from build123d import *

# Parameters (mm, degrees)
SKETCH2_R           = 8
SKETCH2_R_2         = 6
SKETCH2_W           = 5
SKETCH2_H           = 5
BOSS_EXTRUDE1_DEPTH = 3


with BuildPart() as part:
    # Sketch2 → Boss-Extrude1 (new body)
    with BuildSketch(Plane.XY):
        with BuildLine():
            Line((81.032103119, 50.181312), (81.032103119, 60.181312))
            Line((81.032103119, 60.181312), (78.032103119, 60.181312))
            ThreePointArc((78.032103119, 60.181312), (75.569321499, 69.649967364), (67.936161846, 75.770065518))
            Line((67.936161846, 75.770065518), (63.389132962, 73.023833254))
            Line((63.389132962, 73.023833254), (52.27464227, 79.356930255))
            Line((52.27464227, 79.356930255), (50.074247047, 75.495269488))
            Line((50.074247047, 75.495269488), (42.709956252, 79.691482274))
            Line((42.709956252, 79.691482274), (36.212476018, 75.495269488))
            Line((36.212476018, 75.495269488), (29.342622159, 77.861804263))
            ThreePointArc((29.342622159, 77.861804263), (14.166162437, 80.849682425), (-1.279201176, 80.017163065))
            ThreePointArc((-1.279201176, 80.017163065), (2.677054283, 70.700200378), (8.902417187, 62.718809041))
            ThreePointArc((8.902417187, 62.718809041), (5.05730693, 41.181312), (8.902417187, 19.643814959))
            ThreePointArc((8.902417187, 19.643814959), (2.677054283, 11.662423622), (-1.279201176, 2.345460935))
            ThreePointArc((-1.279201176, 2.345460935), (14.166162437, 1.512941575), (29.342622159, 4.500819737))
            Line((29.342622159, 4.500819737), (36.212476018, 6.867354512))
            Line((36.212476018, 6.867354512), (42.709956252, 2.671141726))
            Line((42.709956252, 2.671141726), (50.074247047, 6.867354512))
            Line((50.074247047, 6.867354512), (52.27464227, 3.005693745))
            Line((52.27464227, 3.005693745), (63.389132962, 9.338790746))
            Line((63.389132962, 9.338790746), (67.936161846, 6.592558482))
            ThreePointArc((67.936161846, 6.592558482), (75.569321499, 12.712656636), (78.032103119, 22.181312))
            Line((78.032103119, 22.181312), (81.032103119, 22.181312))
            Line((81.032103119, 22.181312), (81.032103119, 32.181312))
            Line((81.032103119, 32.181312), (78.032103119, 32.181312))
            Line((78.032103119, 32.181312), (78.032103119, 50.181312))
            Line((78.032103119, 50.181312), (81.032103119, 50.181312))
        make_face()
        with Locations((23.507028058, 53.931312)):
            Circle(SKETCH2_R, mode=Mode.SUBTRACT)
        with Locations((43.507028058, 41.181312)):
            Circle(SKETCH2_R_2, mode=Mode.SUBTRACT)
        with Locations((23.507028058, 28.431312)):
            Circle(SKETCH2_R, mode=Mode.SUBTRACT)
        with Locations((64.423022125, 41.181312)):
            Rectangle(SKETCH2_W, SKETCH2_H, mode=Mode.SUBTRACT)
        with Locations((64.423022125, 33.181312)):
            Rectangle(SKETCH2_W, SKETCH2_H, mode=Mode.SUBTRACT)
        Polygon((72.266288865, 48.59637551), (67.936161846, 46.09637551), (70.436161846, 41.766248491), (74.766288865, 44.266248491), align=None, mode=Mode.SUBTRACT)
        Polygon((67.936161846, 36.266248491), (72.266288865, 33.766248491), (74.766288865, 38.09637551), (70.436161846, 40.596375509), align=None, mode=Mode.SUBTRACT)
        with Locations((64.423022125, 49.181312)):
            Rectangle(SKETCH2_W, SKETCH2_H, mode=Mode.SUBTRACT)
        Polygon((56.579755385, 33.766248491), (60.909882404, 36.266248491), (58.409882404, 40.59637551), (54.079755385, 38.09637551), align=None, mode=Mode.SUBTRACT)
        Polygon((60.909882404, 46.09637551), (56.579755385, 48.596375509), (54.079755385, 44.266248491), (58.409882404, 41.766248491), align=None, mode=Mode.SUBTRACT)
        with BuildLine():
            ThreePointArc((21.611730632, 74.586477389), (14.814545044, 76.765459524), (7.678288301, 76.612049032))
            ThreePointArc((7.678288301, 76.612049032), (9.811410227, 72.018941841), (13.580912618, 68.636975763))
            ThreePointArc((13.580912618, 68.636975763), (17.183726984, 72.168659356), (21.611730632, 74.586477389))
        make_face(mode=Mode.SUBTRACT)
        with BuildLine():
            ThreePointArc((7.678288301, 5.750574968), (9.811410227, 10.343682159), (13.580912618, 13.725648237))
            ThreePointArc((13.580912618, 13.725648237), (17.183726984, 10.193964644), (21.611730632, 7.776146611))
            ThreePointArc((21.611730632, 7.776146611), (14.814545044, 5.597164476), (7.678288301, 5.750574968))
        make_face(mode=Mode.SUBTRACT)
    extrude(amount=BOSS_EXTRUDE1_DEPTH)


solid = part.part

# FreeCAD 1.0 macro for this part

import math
import FreeCAD as App
import Part
import Sketcher
from FreeCAD import Vector
Q = App.Units.Quantity


def add_polygon(sketch, points):
    """Adds a closed chain of lines whose ends are joined by coincident constraints."""
    first, n = sketch.GeometryCount, len(points)
    for a, b in zip(points, points[1:] + points[:1]):
        sketch.addGeometry(Part.LineSegment(App.Vector(*a, 0), App.Vector(*b, 0)), False)
    for i in range(n):
        sketch.addConstraint(Sketcher.Constraint("Coincident", first + i, 2, first + (i + 1) % n, 1))

doc = App.newDocument("Part")
body = doc.addObject("PartDesign::Body", "Body")

# Sketch on XY plane
sketch1 = doc.addObject("Sketcher::SketchObject", "Sketch")
body.addObject(sketch1)
sketch1.AttachmentSupport = (doc.XY_Plane, [""])
sketch1.MapMode = "FlatFace"
sketch1.addGeometry(Part.LineSegment(Vector(81.032103, 50.181312, 0), Vector(81.032103, 60.181312, 0)), False)  # 0
sketch1.addGeometry(Part.LineSegment(Vector(81.032103, 60.181312, 0), Vector(78.032103, 60.181312, 0)), False)  # 1
sketch1.addGeometry(Part.ArcOfCircle(Part.Circle(Vector(62.526656, 61.202981, 0), Vector(0, 0, 1), 15.53907), math.radians(-3.769826), math.radians(69.627455)), False)  # 2
sketch1.addGeometry(Part.LineSegment(Vector(67.936162, 75.770066, 0), Vector(63.389133, 73.023833, 0)), False)  # 3
sketch1.addGeometry(Part.LineSegment(Vector(63.389133, 73.023833, 0), Vector(52.274642, 79.35693, 0)), False)  # 4
sketch1.addGeometry(Part.LineSegment(Vector(52.274642, 79.35693, 0), Vector(50.074247, 75.495269, 0)), False)  # 5
sketch1.addGeometry(Part.LineSegment(Vector(50.074247, 75.495269, 0), Vector(42.709956, 79.691482, 0)), False)  # 6
sketch1.addGeometry(Part.LineSegment(Vector(42.709956, 79.691482, 0), Vector(36.212476, 75.495269, 0)), False)  # 7
sketch1.addGeometry(Part.LineSegment(Vector(36.212476, 75.495269, 0), Vector(29.342622, 77.861804, 0)), False)  # 8
sketch1.addGeometry(Part.ArcOfCircle(Part.Circle(Vector(9.779948, 18.533425, 0), Vector(0, 0, 1), 62.470432), math.radians(71.750776), math.radians(100.196821)), False)  # 9
sketch1.addGeometry(Part.ArcOfCircle(Part.Circle(Vector(36.212476, 90.438776, 0), Vector(0, 0, 1), 38.913184), math.radians(-164.465592), math.radians(-134.573223)), False)  # 10
sketch1.addGeometry(Part.ArcOfCircle(Part.Circle(Vector(67.29852, 41.181312, 0), Vector(0, 0, 1), 62.241213), math.radians(159.75515), math.radians(200.24485)), False)  # 11
sketch1.addGeometry(Part.ArcOfCircle(Part.Circle(Vector(36.212476, -8.076152, 0), Vector(0, 0, 1), 38.913184), math.radians(134.573223), math.radians(164.465592)), False)  # 12
sketch1.addGeometry(Part.ArcOfCircle(Part.Circle(Vector(9.779948, 63.829199, 0), Vector(0, 0, 1), 62.470432), math.radians(-100.196821), math.radians(-71.750776)), False)  # 13
sketch1.addGeometry(Part.LineSegment(Vector(29.342622, 4.50082, 0), Vector(36.212476, 6.867355, 0)), False)  # 14
sketch1.addGeometry(Part.LineSegment(Vector(36.212476, 6.867355, 0), Vector(42.709956, 2.671142, 0)), False)  # 15
sketch1.addGeometry(Part.LineSegment(Vector(42.709956, 2.671142, 0), Vector(50.074247, 6.867355, 0)), False)  # 16
sketch1.addGeometry(Part.LineSegment(Vector(50.074247, 6.867355, 0), Vector(52.274642, 3.005694, 0)), False)  # 17
sketch1.addGeometry(Part.LineSegment(Vector(52.274642, 3.005694, 0), Vector(63.389133, 9.338791, 0)), False)  # 18
sketch1.addGeometry(Part.LineSegment(Vector(63.389133, 9.338791, 0), Vector(67.936162, 6.592558, 0)), False)  # 19
sketch1.addGeometry(Part.ArcOfCircle(Part.Circle(Vector(62.526656, 21.159643, 0), Vector(0, 0, 1), 15.53907), math.radians(-69.627455), math.radians(3.769826)), False)  # 20
sketch1.addGeometry(Part.LineSegment(Vector(78.032103, 22.181312, 0), Vector(81.032103, 22.181312, 0)), False)  # 21
sketch1.addGeometry(Part.LineSegment(Vector(81.032103, 22.181312, 0), Vector(81.032103, 32.181312, 0)), False)  # 22
sketch1.addGeometry(Part.LineSegment(Vector(81.032103, 32.181312, 0), Vector(78.032103, 32.181312, 0)), False)  # 23
sketch1.addGeometry(Part.LineSegment(Vector(78.032103, 32.181312, 0), Vector(78.032103, 50.181312, 0)), False)  # 24
sketch1.addGeometry(Part.LineSegment(Vector(78.032103, 50.181312, 0), Vector(81.032103, 50.181312, 0)), False)  # 25
sketch1.addGeometry(Part.ArcOfCircle(Part.Circle(Vector(11.704645, 26.989454, 0), Vector(0, 0, 1), 21.617158), math.radians(-100.734453), math.radians(-62.722708)), False)  # 26
sketch1.addGeometry(Part.ArcOfCircle(Part.Circle(Vector(19.937346, 2.849131, 0), Vector(0, 0, 1), 12.597733), math.radians(120.302788), math.radians(166.684395)), False)  # 27
sketch1.addGeometry(Part.ArcOfCircle(Part.Circle(Vector(28.113797, 24.947705, 0), Vector(0, 0, 1), 18.361353), math.radians(-142.325264), math.radians(-110.739334)), False)  # 28
sketch1.addGeometry(Part.Circle(Vector(23.507028, 28.431312, 0), Vector(0, 0, 1), 8), False)  # 29
add_polygon(sketch1, [(60.909882, 36.266248), (56.579755, 33.766248), (54.079755, 38.096376), (58.409882, 40.596376)])  # lines 30-33
add_polygon(sketch1, [(66.923022, 30.681312), (61.923022, 30.681312), (61.923022, 35.681312), (66.923022, 35.681312)])  # lines 34-37
add_polygon(sketch1, [(72.266289, 33.766248), (67.936162, 36.266248), (70.436162, 40.596376), (74.766289, 38.096376)])  # lines 38-41
sketch1.addGeometry(Part.Circle(Vector(23.507028, 53.931312, 0), Vector(0, 0, 1), 8), False)  # 42
sketch1.addGeometry(Part.ArcOfCircle(Part.Circle(Vector(11.704645, 55.37317, 0), Vector(0, 0, 1), 21.617158), math.radians(62.722708), math.radians(100.734453)), False)  # 43
sketch1.addGeometry(Part.ArcOfCircle(Part.Circle(Vector(28.113797, 57.414919, 0), Vector(0, 0, 1), 18.361353), math.radians(110.739334), math.radians(142.325264)), False)  # 44
sketch1.addGeometry(Part.ArcOfCircle(Part.Circle(Vector(19.937346, 79.513493, 0), Vector(0, 0, 1), 12.597733), math.radians(-166.684395), math.radians(-120.302788)), False)  # 45
sketch1.addGeometry(Part.Circle(Vector(43.507028, 41.181312, 0), Vector(0, 0, 1), 6), False)  # 46
add_polygon(sketch1, [(56.579755, 48.596376), (60.909882, 46.096376), (58.409882, 41.766248), (54.079755, 44.266248)])  # lines 47-50
add_polygon(sketch1, [(66.923022, 38.681312), (61.923022, 38.681312), (61.923022, 43.681312), (66.923022, 43.681312)])  # lines 51-54
add_polygon(sketch1, [(66.923022, 46.681312), (61.923022, 46.681312), (61.923022, 51.681312), (66.923022, 51.681312)])  # lines 55-58
add_polygon(sketch1, [(67.936162, 46.096376), (72.266289, 48.596376), (74.766289, 44.266248), (70.436162, 41.766248)])  # lines 59-62
sketch1.addConstraint([
    Sketcher.Constraint("Coincident", 0, 2, 1, 1),
    Sketcher.Constraint("Coincident", 1, 2, 2, 1),
    Sketcher.Constraint("Coincident", 2, 2, 3, 1),
    Sketcher.Constraint("Coincident", 3, 2, 4, 1),
    Sketcher.Constraint("Coincident", 4, 2, 5, 1),
    Sketcher.Constraint("Coincident", 5, 2, 6, 1),
    Sketcher.Constraint("Coincident", 6, 2, 7, 1),
    Sketcher.Constraint("Coincident", 7, 2, 8, 1),
    Sketcher.Constraint("Coincident", 8, 2, 9, 1),
    Sketcher.Constraint("Coincident", 9, 2, 10, 1),
    Sketcher.Constraint("Coincident", 10, 2, 11, 1),
    Sketcher.Constraint("Coincident", 11, 2, 12, 1),
    Sketcher.Constraint("Coincident", 12, 2, 13, 1),
    Sketcher.Constraint("Coincident", 13, 2, 14, 1),
    Sketcher.Constraint("Coincident", 14, 2, 15, 1),
    Sketcher.Constraint("Coincident", 15, 2, 16, 1),
    Sketcher.Constraint("Coincident", 16, 2, 17, 1),
    Sketcher.Constraint("Coincident", 17, 2, 18, 1),
    Sketcher.Constraint("Coincident", 18, 2, 19, 1),
    Sketcher.Constraint("Coincident", 19, 2, 20, 1),
    Sketcher.Constraint("Coincident", 20, 2, 21, 1),
    Sketcher.Constraint("Coincident", 21, 2, 22, 1),
    Sketcher.Constraint("Coincident", 22, 2, 23, 1),
    Sketcher.Constraint("Coincident", 23, 2, 24, 1),
    Sketcher.Constraint("Coincident", 24, 2, 25, 1),
    Sketcher.Constraint("Coincident", 25, 2, 0, 1),
    Sketcher.Constraint("Coincident", 26, 1, 27, 2),
    Sketcher.Constraint("Coincident", 27, 1, 28, 1),
    Sketcher.Constraint("Coincident", 28, 2, 26, 2),
    Sketcher.Constraint("Coincident", 43, 1, 44, 1),
    Sketcher.Constraint("Coincident", 44, 2, 45, 2),
    Sketcher.Constraint("Coincident", 45, 1, 43, 2),
    Sketcher.Constraint("Vertical", 0),
    Sketcher.Constraint("Horizontal", 1),
    Sketcher.Constraint("Horizontal", 21),
    Sketcher.Constraint("Vertical", 22),
    Sketcher.Constraint("Horizontal", 23),
    Sketcher.Constraint("Vertical", 24),
    Sketcher.Constraint("Horizontal", 25),
    Sketcher.Constraint("Horizontal", 34),
    Sketcher.Constraint("Vertical", 35),
    Sketcher.Constraint("Horizontal", 36),
    Sketcher.Constraint("Vertical", 37),
    Sketcher.Constraint("Horizontal", 51),
    Sketcher.Constraint("Vertical", 52),
    Sketcher.Constraint("Horizontal", 53),
    Sketcher.Constraint("Vertical", 54),
    Sketcher.Constraint("Horizontal", 55),
    Sketcher.Constraint("Vertical", 56),
    Sketcher.Constraint("Horizontal", 57),
    Sketcher.Constraint("Vertical", 58),
    Sketcher.Constraint("Equal", 10, 12),
    Sketcher.Constraint("Equal", 9, 13),
    Sketcher.Constraint("Equal", 2, 20),
    Sketcher.Constraint("Equal", 29, 42),
    Sketcher.Constraint("Equal", 26, 43),
    Sketcher.Constraint("Equal", 28, 44),
    Sketcher.Constraint("Equal", 27, 45),
    Sketcher.Constraint("Perpendicular", 4, 5),
    Sketcher.Constraint("Perpendicular", 5, 6),
    Sketcher.Constraint("Perpendicular", 16, 17),
    Sketcher.Constraint("Perpendicular", 17, 18),
    Sketcher.Constraint("Perpendicular", 30, 31),
    Sketcher.Constraint("Perpendicular", 31, 32),
    Sketcher.Constraint("Perpendicular", 32, 33),
    Sketcher.Constraint("Perpendicular", 38, 39),
    Sketcher.Constraint("Perpendicular", 39, 40),
    Sketcher.Constraint("Perpendicular", 40, 41),
    Sketcher.Constraint("Perpendicular", 41, 47),
    Sketcher.Constraint("Perpendicular", 47, 48),
    Sketcher.Constraint("Perpendicular", 48, 49),
    Sketcher.Constraint("Perpendicular", 49, 50),
    Sketcher.Constraint("Perpendicular", 33, 59),
    Sketcher.Constraint("Perpendicular", 59, 60),
    Sketcher.Constraint("Perpendicular", 60, 61),
    Sketcher.Constraint("Perpendicular", 61, 62),
    Sketcher.Constraint("Horizontal", 11, 3, 46, 3),
    Sketcher.Constraint("Horizontal", 5, 2, 7, 2),
    Sketcher.Constraint("Horizontal", 14, 2, 16, 2),
    Sketcher.Constraint("Horizontal", 33, 2, 38, 2),
    Sketcher.Constraint("Horizontal", 32, 2, 39, 2),
    Sketcher.Constraint("Horizontal", 31, 2, 40, 2),
    Sketcher.Constraint("Horizontal", 50, 2, 59, 2),
    Sketcher.Constraint("Horizontal", 49, 2, 60, 2),
    Sketcher.Constraint("Horizontal", 48, 2, 61, 2),
    Sketcher.Constraint("Vertical", 10, 3, 12, 3),
    Sketcher.Constraint("Vertical", 9, 3, 13, 3),
    Sketcher.Constraint("Vertical", 2, 3, 20, 3),
    Sketcher.Constraint("Vertical", 29, 3, 42, 3),
    Sketcher.Constraint("Vertical", 26, 3, 43, 3),
    Sketcher.Constraint("Vertical", 28, 3, 44, 3),
    Sketcher.Constraint("Vertical", 27, 3, 45, 3),
    Sketcher.Constraint("Vertical", 12, 3, 7, 2),
    Sketcher.Constraint("Vertical", 10, 2, 11, 2),
    Sketcher.Constraint("Vertical", 9, 2, 12, 2),
    Sketcher.Constraint("Vertical", 8, 2, 13, 2),
    Sketcher.Constraint("Vertical", 7, 2, 14, 2),
    Sketcher.Constraint("Vertical", 6, 2, 15, 2),
    Sketcher.Constraint("Vertical", 5, 2, 16, 2),
    Sketcher.Constraint("Vertical", 4, 2, 17, 2),
    Sketcher.Constraint("Vertical", 3, 2, 18, 2),
    Sketcher.Constraint("Vertical", 2, 2, 19, 2),
    Sketcher.Constraint("Vertical", 1, 2, 20, 2),
    Sketcher.Constraint("Vertical", 0, 2, 21, 2),
    Sketcher.Constraint("Vertical", 20, 2, 23, 2),
    Sketcher.Constraint("Vertical", 19, 2, 38, 2),
    Sketcher.Constraint("Vertical", 28, 2, 43, 1),
    Sketcher.Constraint("Vertical", 27, 1, 44, 2),
    Sketcher.Constraint("Vertical", 33, 2, 47, 2),
    Sketcher.Constraint("Vertical", 32, 2, 48, 2),
    Sketcher.Constraint("Vertical", 31, 2, 49, 2),
    Sketcher.Constraint("Vertical", 35, 2, 51, 2),
    Sketcher.Constraint("Vertical", 37, 2, 53, 2),
    Sketcher.Constraint("Vertical", 52, 2, 55, 2),
    Sketcher.Constraint("Vertical", 54, 2, 57, 2),
    Sketcher.Constraint("Vertical", 41, 2, 59, 2),
    Sketcher.Constraint("Vertical", 40, 2, 60, 2),
    Sketcher.Constraint("Equal", 0, 22),
    Sketcher.Constraint("Equal", 57, 35),
    Sketcher.Constraint("Equal", 37, 52),
    Sketcher.Constraint("Equal", 54, 56),
    Sketcher.Constraint("Equal", 8, 14),
    Sketcher.Constraint("Equal", 7, 15),
    Sketcher.Constraint("Equal", 3, 19),
    Sketcher.Constraint("Equal", 30, 31),
    Sketcher.Constraint("Diameter", 29, Q("16 mm")),
    Sketcher.Constraint("Diameter", 46, Q("12 mm")),
    Sketcher.Constraint("DistanceX", 1, 2, 1, 1, Q("3 mm")),
    Sketcher.Constraint("DistanceX", 34, 2, 34, 1, Q("5 mm")),
    Sketcher.Constraint("DistanceY", 0, 1, 0, 2, Q("10 mm")),
    Sketcher.Constraint("DistanceY", 24, 1, 24, 2, Q("18 mm")),
    Sketcher.Constraint("Angle", 30, Q("-150 deg")),
    Sketcher.Constraint("Distance", 30, Q("5 mm")),
    Sketcher.Constraint("Radius", 2, Q("15.53907 mm")),
    Sketcher.Constraint("Radius", 9, Q("62.470432 mm")),
    Sketcher.Constraint("Radius", 10, Q("38.913184 mm")),
    Sketcher.Constraint("Radius", 11, Q("62.241213 mm")),
    Sketcher.Constraint("Radius", 26, Q("21.617158 mm")),
    Sketcher.Constraint("Radius", 27, Q("12.597733 mm")),
    Sketcher.Constraint("Radius", 28, Q("18.361353 mm")),
    Sketcher.Constraint("DistanceY", -1, 1, 13, 3, Q("63.829199 mm")),
    Sketcher.Constraint("DistanceX", 9, 2, -1, 1, Q("1.279201 mm")),
    Sketcher.Constraint("Distance", 7, Q("7.734691 mm")),
    Sketcher.Constraint("DistanceY", -1, 1, 2, 3, Q("61.202981 mm")),
    Sketcher.Constraint("DistanceX", -1, 1, 11, 3, Q("67.29852 mm")),
    Sketcher.Constraint("DistanceY", -1, 1, 11, 3, Q("41.181312 mm")),
    Sketcher.Constraint("DistanceY", 12, 3, -1, 1, Q("8.076152 mm")),
    Sketcher.Constraint("DistanceY", -1, 1, 27, 3, Q("2.849131 mm")),
    Sketcher.Constraint("DistanceX", -1, 1, 29, 3, Q("23.507028 mm")),
    Sketcher.Constraint("DistanceY", -1, 1, 29, 3, Q("28.431312 mm")),
    Sketcher.Constraint("DistanceY", -1, 1, 42, 3, Q("53.931312 mm")),
    Sketcher.Constraint("DistanceY", -1, 1, 43, 3, Q("55.37317 mm")),
    Sketcher.Constraint("DistanceY", -1, 1, 44, 3, Q("57.414919 mm")),
    Sketcher.Constraint("DistanceX", -1, 1, 46, 3, Q("43.507028 mm")),
    Sketcher.Constraint("DistanceX", -1, 1, 2, 2, Q("67.936162 mm")),
    Sketcher.Constraint("DistanceY", -1, 1, 4, 2, Q("79.35693 mm")),
    Sketcher.Constraint("DistanceY", -1, 1, 5, 2, Q("75.495269 mm")),
    Sketcher.Constraint("DistanceY", -1, 1, 12, 2, Q("2.345461 mm")),
    Sketcher.Constraint("DistanceY", -1, 1, 13, 2, Q("4.50082 mm")),
    Sketcher.Constraint("DistanceY", -1, 1, 15, 2, Q("2.671142 mm")),
    Sketcher.Constraint("DistanceY", -1, 1, 18, 2, Q("9.338791 mm")),
    Sketcher.Constraint("DistanceY", -1, 1, 19, 2, Q("6.592558 mm")),
    Sketcher.Constraint("DistanceX", -1, 1, 26, 1, Q("7.678288 mm")),
    Sketcher.Constraint("DistanceY", -1, 1, 27, 1, Q("13.725648 mm")),
    Sketcher.Constraint("DistanceX", -1, 1, 28, 2, Q("21.611731 mm")),
    Sketcher.Constraint("DistanceY", -1, 1, 30, 2, Q("33.766248 mm")),
    Sketcher.Constraint("DistanceY", -1, 1, 34, 2, Q("30.681312 mm")),
    Sketcher.Constraint("DistanceY", -1, 1, 45, 1, Q("76.612049 mm")),
    Sketcher.Constraint("DistanceY", -1, 1, 48, 2, Q("41.766248 mm")),
    Sketcher.Constraint("DistanceY", -1, 1, 51, 2, Q("38.681312 mm")),
    Sketcher.Constraint("DistanceY", -1, 1, 55, 2, Q("46.681312 mm")),
    Sketcher.Constraint("Distance", 3, Q("5.311992 mm")),
    Sketcher.Constraint("DistanceX", -1, 1, 30, 2, Q("56.579755 mm")),
    Sketcher.Constraint("DistanceX", -1, 1, 34, 2, Q("61.923022 mm")),
])
pad1 = doc.addObject("PartDesign::Pad", "Pad")
body.addObject(pad1)
pad1.Profile = sketch1
pad1.Length = 3

doc.recompute()
